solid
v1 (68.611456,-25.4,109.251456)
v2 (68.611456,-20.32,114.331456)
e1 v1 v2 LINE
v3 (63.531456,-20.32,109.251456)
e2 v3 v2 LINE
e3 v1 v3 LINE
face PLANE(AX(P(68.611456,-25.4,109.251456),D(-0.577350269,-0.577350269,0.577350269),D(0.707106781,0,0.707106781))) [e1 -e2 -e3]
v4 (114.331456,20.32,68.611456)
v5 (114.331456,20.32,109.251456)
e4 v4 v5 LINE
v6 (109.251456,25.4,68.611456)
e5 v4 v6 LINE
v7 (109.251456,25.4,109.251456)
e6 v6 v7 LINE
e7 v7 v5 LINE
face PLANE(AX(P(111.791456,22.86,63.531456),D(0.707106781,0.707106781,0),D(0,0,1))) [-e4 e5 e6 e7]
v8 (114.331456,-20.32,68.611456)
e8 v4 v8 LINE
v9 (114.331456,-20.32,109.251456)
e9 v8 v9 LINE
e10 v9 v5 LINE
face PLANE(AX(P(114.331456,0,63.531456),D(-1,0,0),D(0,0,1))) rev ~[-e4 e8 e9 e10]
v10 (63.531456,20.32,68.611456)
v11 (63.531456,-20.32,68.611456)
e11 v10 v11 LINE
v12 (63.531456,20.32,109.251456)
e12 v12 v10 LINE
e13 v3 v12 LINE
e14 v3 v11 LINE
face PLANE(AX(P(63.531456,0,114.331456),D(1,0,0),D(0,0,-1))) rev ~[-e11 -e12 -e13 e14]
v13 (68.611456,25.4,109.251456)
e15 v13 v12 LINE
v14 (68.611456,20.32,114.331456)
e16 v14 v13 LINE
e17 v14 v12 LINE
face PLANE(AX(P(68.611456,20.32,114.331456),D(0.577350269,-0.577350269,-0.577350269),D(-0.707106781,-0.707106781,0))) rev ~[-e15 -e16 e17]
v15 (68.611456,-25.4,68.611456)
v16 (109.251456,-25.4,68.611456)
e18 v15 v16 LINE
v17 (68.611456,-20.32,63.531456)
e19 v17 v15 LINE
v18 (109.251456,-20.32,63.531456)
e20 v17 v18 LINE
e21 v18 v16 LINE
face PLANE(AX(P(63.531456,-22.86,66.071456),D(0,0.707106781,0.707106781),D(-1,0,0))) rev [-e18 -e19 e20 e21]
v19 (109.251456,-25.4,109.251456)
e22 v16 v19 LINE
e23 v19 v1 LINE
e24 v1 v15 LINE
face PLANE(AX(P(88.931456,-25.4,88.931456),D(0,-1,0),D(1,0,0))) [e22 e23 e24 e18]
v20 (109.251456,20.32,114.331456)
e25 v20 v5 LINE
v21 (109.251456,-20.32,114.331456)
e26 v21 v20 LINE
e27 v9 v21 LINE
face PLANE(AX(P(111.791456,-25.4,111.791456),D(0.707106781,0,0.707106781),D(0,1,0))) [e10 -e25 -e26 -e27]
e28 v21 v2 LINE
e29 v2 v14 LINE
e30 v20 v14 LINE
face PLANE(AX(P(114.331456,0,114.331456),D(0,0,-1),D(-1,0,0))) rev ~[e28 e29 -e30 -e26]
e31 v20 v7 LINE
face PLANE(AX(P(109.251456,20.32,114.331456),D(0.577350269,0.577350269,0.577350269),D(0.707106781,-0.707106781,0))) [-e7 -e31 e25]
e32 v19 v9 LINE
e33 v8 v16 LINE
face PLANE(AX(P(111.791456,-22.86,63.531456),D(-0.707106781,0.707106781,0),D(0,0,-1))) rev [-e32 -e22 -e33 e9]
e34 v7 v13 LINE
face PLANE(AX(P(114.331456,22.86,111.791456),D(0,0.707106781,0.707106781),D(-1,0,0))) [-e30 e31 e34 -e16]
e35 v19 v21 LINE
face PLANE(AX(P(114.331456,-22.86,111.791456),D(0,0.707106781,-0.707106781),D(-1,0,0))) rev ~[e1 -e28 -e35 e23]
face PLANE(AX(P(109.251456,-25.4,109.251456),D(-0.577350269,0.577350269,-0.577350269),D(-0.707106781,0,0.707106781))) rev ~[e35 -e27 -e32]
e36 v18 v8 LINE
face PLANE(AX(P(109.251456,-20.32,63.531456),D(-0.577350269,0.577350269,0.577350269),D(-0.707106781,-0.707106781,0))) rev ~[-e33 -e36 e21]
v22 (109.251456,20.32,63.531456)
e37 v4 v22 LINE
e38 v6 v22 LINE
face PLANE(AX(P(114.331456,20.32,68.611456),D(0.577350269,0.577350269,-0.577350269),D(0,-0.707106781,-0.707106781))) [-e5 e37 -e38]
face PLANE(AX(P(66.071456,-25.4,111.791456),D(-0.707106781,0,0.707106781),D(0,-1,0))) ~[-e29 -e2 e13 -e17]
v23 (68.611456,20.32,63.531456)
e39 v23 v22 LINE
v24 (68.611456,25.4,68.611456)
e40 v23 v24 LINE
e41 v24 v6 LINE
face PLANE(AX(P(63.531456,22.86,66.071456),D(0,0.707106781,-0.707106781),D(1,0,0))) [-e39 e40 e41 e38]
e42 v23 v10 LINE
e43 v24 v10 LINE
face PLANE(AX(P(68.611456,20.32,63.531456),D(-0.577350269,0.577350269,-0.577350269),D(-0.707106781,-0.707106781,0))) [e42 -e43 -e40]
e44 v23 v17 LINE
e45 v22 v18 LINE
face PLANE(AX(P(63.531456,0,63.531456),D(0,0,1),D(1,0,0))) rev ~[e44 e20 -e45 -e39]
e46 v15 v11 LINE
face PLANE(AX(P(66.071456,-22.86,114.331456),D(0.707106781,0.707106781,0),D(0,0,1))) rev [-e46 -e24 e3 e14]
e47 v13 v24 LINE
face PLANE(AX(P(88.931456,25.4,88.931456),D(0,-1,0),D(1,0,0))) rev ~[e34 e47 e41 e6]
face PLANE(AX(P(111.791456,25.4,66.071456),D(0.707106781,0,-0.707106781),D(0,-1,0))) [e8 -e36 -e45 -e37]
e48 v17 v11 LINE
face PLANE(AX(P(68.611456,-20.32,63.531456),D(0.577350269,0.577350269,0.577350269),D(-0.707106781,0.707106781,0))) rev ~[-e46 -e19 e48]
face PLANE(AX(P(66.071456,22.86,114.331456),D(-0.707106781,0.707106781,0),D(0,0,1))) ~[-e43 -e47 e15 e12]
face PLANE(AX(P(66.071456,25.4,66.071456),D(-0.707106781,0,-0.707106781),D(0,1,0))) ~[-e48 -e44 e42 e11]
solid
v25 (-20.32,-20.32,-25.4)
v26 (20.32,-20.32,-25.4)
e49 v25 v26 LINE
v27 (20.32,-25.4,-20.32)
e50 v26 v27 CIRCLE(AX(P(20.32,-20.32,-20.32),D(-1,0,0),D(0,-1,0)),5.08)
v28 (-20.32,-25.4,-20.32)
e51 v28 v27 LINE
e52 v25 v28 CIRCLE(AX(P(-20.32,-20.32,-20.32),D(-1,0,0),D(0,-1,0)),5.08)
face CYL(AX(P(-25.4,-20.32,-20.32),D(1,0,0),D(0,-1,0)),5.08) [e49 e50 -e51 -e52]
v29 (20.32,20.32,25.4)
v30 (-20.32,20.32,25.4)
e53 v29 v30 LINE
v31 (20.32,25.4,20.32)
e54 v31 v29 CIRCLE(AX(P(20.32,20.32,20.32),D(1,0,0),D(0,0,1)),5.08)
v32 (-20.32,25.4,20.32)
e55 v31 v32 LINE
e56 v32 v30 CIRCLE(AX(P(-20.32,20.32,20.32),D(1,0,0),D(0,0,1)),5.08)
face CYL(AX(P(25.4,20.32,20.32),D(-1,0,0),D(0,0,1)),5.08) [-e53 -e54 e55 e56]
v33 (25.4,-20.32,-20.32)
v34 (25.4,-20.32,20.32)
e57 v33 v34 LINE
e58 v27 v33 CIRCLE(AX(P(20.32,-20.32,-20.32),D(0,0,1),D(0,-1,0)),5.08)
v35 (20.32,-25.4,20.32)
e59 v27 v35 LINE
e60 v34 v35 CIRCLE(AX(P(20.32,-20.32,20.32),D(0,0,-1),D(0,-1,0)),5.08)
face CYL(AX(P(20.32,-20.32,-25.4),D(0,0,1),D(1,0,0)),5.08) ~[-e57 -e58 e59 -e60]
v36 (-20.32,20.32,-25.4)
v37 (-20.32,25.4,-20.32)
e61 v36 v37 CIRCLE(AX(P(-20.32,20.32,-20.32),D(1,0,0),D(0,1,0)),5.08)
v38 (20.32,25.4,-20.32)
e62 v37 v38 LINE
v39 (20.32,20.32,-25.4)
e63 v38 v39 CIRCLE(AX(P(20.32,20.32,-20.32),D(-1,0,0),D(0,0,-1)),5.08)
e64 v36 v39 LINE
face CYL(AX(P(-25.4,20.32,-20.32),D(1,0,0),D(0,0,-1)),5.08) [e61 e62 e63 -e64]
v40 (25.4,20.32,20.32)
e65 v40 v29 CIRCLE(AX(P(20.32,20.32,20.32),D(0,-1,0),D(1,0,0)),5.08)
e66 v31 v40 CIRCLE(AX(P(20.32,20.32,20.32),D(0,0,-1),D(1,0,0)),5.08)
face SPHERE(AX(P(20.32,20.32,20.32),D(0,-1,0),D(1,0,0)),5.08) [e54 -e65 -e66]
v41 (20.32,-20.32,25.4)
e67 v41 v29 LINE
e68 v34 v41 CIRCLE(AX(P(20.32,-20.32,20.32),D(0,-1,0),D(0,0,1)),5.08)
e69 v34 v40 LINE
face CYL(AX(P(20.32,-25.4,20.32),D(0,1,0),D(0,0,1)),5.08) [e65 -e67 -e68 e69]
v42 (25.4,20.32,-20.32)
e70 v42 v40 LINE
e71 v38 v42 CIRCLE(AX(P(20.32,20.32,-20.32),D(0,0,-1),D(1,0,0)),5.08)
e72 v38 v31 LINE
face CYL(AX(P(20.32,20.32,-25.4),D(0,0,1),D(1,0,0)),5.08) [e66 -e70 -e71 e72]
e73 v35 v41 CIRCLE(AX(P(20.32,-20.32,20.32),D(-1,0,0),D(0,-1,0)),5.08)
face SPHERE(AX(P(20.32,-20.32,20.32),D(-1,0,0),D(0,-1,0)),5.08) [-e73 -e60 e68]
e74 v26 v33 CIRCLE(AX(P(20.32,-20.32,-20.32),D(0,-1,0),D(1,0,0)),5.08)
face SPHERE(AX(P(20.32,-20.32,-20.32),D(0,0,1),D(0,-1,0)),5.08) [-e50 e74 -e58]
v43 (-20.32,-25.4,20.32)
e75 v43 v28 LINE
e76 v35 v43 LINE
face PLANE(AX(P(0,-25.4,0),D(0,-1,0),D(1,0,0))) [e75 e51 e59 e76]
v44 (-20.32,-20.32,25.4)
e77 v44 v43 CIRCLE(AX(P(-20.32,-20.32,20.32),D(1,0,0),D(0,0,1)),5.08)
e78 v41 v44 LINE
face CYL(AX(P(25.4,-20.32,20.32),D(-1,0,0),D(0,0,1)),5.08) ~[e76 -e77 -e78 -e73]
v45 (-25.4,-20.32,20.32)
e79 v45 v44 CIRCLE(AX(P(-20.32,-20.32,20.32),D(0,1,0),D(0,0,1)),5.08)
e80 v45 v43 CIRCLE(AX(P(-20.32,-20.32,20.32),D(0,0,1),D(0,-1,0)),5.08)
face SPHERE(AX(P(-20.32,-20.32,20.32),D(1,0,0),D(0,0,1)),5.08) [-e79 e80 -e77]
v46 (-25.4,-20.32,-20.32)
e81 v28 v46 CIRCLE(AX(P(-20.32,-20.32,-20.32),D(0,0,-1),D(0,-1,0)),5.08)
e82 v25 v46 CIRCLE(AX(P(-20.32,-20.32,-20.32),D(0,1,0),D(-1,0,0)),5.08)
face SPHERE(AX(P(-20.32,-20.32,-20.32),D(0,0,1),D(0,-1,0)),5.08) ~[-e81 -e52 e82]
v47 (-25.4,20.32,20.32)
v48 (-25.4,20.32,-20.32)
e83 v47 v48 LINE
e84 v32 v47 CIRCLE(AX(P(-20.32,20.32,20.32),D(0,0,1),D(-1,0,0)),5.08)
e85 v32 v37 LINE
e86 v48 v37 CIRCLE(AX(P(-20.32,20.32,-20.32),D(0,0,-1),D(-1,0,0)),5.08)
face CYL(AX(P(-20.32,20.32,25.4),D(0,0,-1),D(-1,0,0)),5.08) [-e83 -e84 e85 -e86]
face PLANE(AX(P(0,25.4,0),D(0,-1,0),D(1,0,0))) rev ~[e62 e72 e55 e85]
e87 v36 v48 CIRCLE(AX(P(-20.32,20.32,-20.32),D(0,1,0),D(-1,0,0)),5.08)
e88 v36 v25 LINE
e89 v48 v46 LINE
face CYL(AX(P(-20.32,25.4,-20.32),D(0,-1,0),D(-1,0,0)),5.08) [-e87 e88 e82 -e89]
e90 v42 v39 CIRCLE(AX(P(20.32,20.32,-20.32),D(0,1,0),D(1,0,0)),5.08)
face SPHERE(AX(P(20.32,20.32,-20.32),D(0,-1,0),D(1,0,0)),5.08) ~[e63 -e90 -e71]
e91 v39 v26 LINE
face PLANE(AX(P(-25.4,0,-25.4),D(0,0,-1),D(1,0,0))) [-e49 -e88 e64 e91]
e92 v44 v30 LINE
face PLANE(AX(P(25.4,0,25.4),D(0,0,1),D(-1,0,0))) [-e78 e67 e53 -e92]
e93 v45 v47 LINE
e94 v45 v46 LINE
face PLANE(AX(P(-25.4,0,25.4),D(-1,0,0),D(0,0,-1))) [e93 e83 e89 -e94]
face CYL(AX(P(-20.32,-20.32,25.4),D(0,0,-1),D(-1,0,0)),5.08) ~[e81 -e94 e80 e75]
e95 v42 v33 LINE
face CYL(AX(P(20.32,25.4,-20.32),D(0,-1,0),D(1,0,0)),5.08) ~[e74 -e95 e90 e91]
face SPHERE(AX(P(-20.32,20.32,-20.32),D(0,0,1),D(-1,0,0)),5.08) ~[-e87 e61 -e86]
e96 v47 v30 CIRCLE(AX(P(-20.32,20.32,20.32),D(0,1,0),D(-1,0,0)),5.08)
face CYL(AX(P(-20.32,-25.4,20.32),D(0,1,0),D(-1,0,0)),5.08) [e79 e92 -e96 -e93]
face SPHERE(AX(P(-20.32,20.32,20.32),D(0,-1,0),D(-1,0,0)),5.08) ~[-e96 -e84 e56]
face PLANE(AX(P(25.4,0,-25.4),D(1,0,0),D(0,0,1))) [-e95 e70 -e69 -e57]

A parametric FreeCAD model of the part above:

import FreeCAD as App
import Part
import Sketcher
Q = App.Units.Quantity


def edges_at(feature, points):
    """Names of the edges that pass closest to the given points."""
    edges = feature.Shape.Edges
    near = lambda p: min(range(len(edges)), key=lambda i: edges[i].distToShape(Part.Vertex(*p))[0])
    return sorted({f"Edge{near(p) + 1}" for p in points})

doc = App.newDocument("Part")
body = doc.addObject("PartDesign::Body", "Body")
body.AllowCompound = True

# Sketch on XZ plane
sketch1 = body.newObject("Sketcher::SketchObject", "Sketch")
sketch1.AttachmentSupport = (doc.getObject("XZ_Plane"), [""])
sketch1.MapMode = "FlatFace"
sketch1.addGeometry([
    Part.LineSegment(App.Vector(64, 114, 0), App.Vector(64, 64, 0)),  # 0
    Part.LineSegment(App.Vector(64, 64, 0), App.Vector(114, 64, 0)),  # 1
    Part.LineSegment(App.Vector(114, 64, 0), App.Vector(114, 114, 0)),  # 2
    Part.LineSegment(App.Vector(114, 114, 0), App.Vector(64, 114, 0)),  # 3
    Part.LineSegment(App.Vector(-25, 25, 0), App.Vector(-25, -25, 0)),  # 4
    Part.LineSegment(App.Vector(-25, -25, 0), App.Vector(25, -25, 0)),  # 5
    Part.LineSegment(App.Vector(25, -25, 0), App.Vector(25, 25, 0)),  # 6
    Part.LineSegment(App.Vector(25, 25, 0), App.Vector(-25, 25, 0)),  # 7
], False)
sketch1.addConstraint([
    Sketcher.Constraint("Coincident", 0, 2, 1, 1),
    Sketcher.Constraint("Coincident", 1, 2, 2, 1),
    Sketcher.Constraint("Coincident", 2, 2, 3, 1),
    Sketcher.Constraint("Coincident", 3, 2, 0, 1),
    Sketcher.Constraint("Coincident", 4, 2, 5, 1),
    Sketcher.Constraint("Coincident", 5, 2, 6, 1),
    Sketcher.Constraint("Coincident", 6, 2, 7, 1),
    Sketcher.Constraint("Coincident", 7, 2, 4, 1),
    Sketcher.Constraint("Vertical", 0),
    Sketcher.Constraint("Horizontal", 1),
    Sketcher.Constraint("Vertical", 2),
    Sketcher.Constraint("Horizontal", 3),
    Sketcher.Constraint("Vertical", 4),
    Sketcher.Constraint("Horizontal", 5),
    Sketcher.Constraint("Vertical", 6),
    Sketcher.Constraint("Horizontal", 7),
    Sketcher.Constraint("Symmetric", 4, 2, 6, 2, -1, 1),
    Sketcher.Constraint("Equal", 3, 5),
    Sketcher.Constraint("Equal", 7, 0),
    Sketcher.Constraint("Equal", 2, 4),
    Sketcher.Constraint("DistanceX", 1, 1, 1, 2, Q("2 in")),
    Sketcher.Constraint("DistanceX", -1, 1, 0, 2, Q("63.531456 mm")),
    Sketcher.Constraint("DistanceY", -1, 1, 0, 2, Q("63.531456 mm")),
])
pad1 = body.newObject("PartDesign::Pad", "Pad")
pad1.Profile = sketch1
pad1.Length = Q("2 in")
pad1.Midplane = True
doc.recompute()

fillet = body.newObject("PartDesign::Fillet", "Fillet")
fillet.Base = (pad1, edges_at(pad1, [
    (0, -25.4, 25.4),
    (25.4, -25.4, 0),
    (25.4, 0, 25.4),
    (-25.4, 0, 25.4),
    (-25.4, -25.4, 0),
    (0, -25.4, -25.4),
    (25.4, 0, -25.4),
    (25.4, 25.4, 0),
    (-25.4, 25.4, 0),
    (-25.4, 0, -25.4),
    (0, 25.4, -25.4),
    (0, 25.4, 25.4),
]))
fillet.Radius = Q("0.2 in")
doc.recompute()

chamfer = body.newObject("PartDesign::Chamfer", "Chamfer")
chamfer.Base = (fillet, edges_at(fillet, [
    (63.531, 25.4, 88.931),
    (88.931, 25.4, 63.531),
    (114.331, 25.4, 88.931),
    (88.931, 25.4, 114.331),
    (63.531, 0, 114.331),
    (114.331, 0, 114.331),
    (114.331, -25.4, 88.931),
    (114.331, 0, 63.531),
    (63.531, -25.4, 88.931),
    (88.931, -25.4, 63.531),
    (88.931, -25.4, 114.331),
    (63.531, 0, 63.531),
]))
chamfer.Size = Q("0.2 in")

doc.recompute()
